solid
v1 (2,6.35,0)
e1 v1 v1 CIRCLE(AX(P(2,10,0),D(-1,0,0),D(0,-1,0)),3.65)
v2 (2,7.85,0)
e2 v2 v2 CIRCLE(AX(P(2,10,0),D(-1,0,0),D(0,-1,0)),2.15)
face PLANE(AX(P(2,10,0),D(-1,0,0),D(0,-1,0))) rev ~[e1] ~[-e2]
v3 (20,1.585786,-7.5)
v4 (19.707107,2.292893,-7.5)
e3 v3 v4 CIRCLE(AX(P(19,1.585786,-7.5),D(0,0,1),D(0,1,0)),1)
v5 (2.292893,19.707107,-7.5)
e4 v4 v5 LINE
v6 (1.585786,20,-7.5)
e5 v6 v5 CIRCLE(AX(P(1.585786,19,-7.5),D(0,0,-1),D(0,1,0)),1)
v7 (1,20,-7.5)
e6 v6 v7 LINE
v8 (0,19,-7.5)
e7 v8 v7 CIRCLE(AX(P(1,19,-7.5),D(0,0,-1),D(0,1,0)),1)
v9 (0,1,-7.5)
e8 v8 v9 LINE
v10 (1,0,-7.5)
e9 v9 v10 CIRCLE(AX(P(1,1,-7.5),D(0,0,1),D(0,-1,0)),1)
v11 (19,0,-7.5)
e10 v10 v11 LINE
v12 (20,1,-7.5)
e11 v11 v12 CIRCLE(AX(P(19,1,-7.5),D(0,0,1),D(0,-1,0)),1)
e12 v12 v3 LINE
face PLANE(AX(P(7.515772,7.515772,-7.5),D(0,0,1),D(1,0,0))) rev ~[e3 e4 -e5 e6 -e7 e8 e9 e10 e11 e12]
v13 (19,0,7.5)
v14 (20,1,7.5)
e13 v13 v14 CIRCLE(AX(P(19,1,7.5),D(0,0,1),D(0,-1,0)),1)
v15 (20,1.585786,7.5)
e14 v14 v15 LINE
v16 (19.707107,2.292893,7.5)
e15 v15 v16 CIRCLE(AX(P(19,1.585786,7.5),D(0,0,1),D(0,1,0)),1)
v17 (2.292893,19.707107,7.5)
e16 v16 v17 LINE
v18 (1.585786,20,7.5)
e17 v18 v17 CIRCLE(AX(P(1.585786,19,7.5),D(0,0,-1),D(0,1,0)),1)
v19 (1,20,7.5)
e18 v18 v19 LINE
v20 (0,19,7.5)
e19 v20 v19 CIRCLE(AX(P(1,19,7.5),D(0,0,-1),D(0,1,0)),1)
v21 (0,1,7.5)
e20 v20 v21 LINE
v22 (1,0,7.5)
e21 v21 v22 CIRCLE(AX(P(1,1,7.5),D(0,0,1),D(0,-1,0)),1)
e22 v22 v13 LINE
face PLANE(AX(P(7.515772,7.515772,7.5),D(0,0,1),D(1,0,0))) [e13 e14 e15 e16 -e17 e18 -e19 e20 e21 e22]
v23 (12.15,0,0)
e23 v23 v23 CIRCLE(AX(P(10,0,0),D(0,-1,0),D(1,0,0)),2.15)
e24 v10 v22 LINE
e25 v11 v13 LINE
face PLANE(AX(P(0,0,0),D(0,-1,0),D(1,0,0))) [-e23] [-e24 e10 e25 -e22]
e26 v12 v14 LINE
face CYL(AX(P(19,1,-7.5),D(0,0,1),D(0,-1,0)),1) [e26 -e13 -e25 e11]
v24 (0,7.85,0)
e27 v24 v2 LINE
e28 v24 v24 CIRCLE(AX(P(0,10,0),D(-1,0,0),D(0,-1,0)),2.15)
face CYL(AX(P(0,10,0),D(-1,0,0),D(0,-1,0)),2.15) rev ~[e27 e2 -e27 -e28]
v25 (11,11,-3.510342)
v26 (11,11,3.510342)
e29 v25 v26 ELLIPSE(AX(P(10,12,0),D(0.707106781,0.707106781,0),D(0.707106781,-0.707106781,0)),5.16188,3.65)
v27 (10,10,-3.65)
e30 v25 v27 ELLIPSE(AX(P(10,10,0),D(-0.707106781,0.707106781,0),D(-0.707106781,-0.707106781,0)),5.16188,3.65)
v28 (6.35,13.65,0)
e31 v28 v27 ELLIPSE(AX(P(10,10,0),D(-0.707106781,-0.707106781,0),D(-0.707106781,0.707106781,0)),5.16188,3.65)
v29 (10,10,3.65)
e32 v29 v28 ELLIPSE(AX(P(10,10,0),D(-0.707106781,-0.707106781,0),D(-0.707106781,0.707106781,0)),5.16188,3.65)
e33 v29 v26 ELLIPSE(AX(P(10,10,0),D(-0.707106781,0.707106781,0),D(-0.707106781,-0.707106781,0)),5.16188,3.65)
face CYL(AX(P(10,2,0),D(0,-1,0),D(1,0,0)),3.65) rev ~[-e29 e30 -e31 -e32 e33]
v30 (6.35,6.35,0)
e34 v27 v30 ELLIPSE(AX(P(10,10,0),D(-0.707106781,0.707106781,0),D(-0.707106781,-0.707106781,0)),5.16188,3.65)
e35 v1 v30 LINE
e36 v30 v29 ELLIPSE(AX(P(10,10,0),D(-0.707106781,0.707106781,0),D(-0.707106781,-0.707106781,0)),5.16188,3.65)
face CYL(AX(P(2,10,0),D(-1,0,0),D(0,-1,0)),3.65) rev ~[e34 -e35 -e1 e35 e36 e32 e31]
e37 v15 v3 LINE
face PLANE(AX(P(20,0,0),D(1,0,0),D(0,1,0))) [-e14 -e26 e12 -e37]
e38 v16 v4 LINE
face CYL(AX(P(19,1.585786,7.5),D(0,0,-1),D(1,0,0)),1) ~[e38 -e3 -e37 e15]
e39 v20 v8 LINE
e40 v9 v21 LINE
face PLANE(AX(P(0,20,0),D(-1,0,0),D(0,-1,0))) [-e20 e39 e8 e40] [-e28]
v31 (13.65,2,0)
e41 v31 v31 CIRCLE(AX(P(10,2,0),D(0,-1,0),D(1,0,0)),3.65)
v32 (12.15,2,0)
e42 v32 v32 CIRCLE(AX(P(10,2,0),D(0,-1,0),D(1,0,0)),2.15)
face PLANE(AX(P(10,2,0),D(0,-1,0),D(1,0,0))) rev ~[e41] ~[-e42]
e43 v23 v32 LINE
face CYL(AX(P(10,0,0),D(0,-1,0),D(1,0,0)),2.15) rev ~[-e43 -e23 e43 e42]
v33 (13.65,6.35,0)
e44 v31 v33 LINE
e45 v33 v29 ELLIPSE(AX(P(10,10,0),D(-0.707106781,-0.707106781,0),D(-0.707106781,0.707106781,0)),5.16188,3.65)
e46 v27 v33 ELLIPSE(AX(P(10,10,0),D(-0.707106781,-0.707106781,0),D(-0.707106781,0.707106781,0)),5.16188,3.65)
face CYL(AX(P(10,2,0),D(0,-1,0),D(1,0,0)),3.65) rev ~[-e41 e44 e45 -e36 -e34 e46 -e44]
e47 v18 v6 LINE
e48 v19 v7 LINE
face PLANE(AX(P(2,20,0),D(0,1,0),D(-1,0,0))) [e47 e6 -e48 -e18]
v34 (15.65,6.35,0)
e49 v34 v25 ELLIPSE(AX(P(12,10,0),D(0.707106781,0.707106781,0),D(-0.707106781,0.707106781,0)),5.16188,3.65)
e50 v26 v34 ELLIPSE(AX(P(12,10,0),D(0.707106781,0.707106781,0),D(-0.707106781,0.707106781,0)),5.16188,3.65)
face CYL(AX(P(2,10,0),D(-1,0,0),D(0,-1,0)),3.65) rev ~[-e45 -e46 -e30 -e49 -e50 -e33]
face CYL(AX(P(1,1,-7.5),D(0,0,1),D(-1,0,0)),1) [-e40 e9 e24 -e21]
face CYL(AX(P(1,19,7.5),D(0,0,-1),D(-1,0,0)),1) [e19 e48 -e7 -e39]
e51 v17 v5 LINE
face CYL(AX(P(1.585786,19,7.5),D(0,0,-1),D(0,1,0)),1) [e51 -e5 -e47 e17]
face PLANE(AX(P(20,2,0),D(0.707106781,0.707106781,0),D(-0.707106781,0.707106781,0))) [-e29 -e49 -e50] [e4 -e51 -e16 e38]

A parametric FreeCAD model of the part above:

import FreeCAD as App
import Part
import Sketcher

V = App.Vector


def edges_at(feature, points):
    """Names of the edges that pass closest to the given points."""
    edges = feature.Shape.Edges
    near = lambda p: min(range(len(edges)), key=lambda i: edges[i].distToShape(Part.Vertex(*p))[0])
    return sorted({f"Edge{near(p) + 1}" for p in points})


def add_polygon(sketch, points):
    """Adds a closed chain of lines whose ends are joined by coincident constraints."""
    first, n = sketch.GeometryCount, len(points)
    for a, b in zip(points, points[1:] + points[:1]):
        sketch.addGeometry(Part.LineSegment(App.Vector(*a, 0), App.Vector(*b, 0)), False)
    for i in range(n):
        sketch.addConstraint(Sketcher.Constraint("Coincident", first + i, 2, first + (i + 1) % n, 1))

doc = App.newDocument("Part")
body = doc.addObject("PartDesign::Body", "Body")

# Sketch on XY plane
sketch1 = body.newObject("Sketcher::SketchObject", "Sketch")
sketch1.AttachmentSupport = (doc.getObject("XY_Plane"), [""])
sketch1.MapMode = "FlatFace"
add_polygon(sketch1, [(0, 20), (0, 0), (20, 0), (20, 2), (2, 20)])  # lines 0-4
sketch1.addConstraint([
    Sketcher.Constraint("Vertical", 0),
    Sketcher.Constraint("Horizontal", 1),
    Sketcher.Constraint("Vertical", 2),
    Sketcher.Constraint("Horizontal", 4),
    Sketcher.Constraint("Coincident", 0, 2, -1, 1),
    Sketcher.Constraint("Equal", 1, 0),
    Sketcher.Constraint("Equal", 4, 2),
    Sketcher.Constraint("DistanceX", 1, 1, 1, 2, 20.0),
    Sketcher.Constraint("DistanceX", 4, 2, 4, 1, 2.0),
])
pad1 = body.newObject("PartDesign::Pad", "Pad")
pad1.Profile = sketch1
pad1.Length = 15
pad1.Midplane = True

# Sketch on XZ plane
sketch2 = body.newObject("Sketcher::SketchObject", "Sketch001")
sketch2.AttachmentSupport = (doc.getObject("XZ_Plane"), [""])
sketch2.MapMode = "FlatFace"
sketch2.addGeometry(Part.Circle(V(10, 0, 0), V(0, 0, 1), 2.1), False)
sketch2.addConstraint([
    Sketcher.Constraint("PointOnObject", 0, 3, -1),
    Sketcher.Constraint("Diameter", 0, 4.3),
    Sketcher.Constraint("DistanceX", -1, 1, 0, 3, 10.0),
])
pocket1 = body.newObject("PartDesign::Pocket", "Pocket")
pocket1.Profile = sketch2
pocket1.Length = 20

# Sketch on YZ plane
sketch3 = body.newObject("Sketcher::SketchObject", "Sketch002")
sketch3.AttachmentSupport = (doc.getObject("YZ_Plane"), [""])
sketch3.MapMode = "FlatFace"
sketch3.addGeometry(Part.Circle(V(10, 0, 0), V(0, 0, 1), 2.1), False)
sketch3.addConstraint([
    Sketcher.Constraint("PointOnObject", 0, 3, -1),
    Sketcher.Constraint("Diameter", 0, 4.3),
    Sketcher.Constraint("DistanceX", -1, 1, 0, 3, 10.0),
])
pocket2 = body.newObject("PartDesign::Pocket", "Pocket001")
pocket2.Profile = sketch3
pocket2.Length = 20
pocket2.Reversed = True

# Sketch on YZ plane
sketch4 = body.newObject("Sketcher::SketchObject", "Sketch003")
sketch4.AttachmentSupport = (doc.getObject("YZ_Plane"), [""])
sketch4.MapMode = "FlatFace"
sketch4.AttachmentOffset = App.Placement(V(0, 0, 2), App.Rotation())
sketch4.addGeometry([
    Part.Circle(V(10, 0, 0), V(0, 0, 1), 3.6),
    Part.Circle(V(10, 0, 0), V(0, 0, 1), 2.1),
], False)
sketch4.addConstraint([
    Sketcher.Constraint("Coincident", 1, 3, 0, 3),
    Sketcher.Constraint("PointOnObject", 0, 3, -1),
    Sketcher.Constraint("Diameter", 0, 7.3),
    Sketcher.Constraint("Diameter", 1, 4.3),
    Sketcher.Constraint("DistanceX", -1, 1, 0, 3, 10.0),
])
pocket3 = body.newObject("PartDesign::Pocket", "Pocket002")
pocket3.Profile = sketch4
pocket3.Length = 18
pocket3.Reversed = True

# Sketch on XZ plane
sketch5 = body.newObject("Sketcher::SketchObject", "Sketch004")
sketch5.AttachmentSupport = (doc.getObject("XZ_Plane"), [""])
sketch5.MapMode = "FlatFace"
sketch5.AttachmentOffset = App.Placement(V(0, 0, -2), App.Rotation())
sketch5.addGeometry([
    Part.Circle(V(10, 0, 0), V(0, 0, 1), 3.6),
    Part.Circle(V(10, 0, 0), V(0, 0, 1), 2.1),
], False)
sketch5.addConstraint([
    Sketcher.Constraint("Coincident", 1, 3, 0, 3),
    Sketcher.Constraint("PointOnObject", 0, 3, -1),
    Sketcher.Constraint("Diameter", 0, 7.3),
    Sketcher.Constraint("Diameter", 1, 4.3),
    Sketcher.Constraint("DistanceX", -1, 1, 0, 3, 10.0),
])
pocket4 = body.newObject("PartDesign::Pocket", "Pocket003")
pocket4.Profile = sketch5
pocket4.Length = 18
doc.recompute()

fillet = body.newObject("PartDesign::Fillet", "Fillet")
fillet.Base = (pocket4, edges_at(pocket4, [
    (0, 0, 0),
    (20, 0, 0),
    (20, 2, 0),
    (2, 20, 0),
    (0, 20, 0),
]))
fillet.Radius = 1

doc.recompute()
